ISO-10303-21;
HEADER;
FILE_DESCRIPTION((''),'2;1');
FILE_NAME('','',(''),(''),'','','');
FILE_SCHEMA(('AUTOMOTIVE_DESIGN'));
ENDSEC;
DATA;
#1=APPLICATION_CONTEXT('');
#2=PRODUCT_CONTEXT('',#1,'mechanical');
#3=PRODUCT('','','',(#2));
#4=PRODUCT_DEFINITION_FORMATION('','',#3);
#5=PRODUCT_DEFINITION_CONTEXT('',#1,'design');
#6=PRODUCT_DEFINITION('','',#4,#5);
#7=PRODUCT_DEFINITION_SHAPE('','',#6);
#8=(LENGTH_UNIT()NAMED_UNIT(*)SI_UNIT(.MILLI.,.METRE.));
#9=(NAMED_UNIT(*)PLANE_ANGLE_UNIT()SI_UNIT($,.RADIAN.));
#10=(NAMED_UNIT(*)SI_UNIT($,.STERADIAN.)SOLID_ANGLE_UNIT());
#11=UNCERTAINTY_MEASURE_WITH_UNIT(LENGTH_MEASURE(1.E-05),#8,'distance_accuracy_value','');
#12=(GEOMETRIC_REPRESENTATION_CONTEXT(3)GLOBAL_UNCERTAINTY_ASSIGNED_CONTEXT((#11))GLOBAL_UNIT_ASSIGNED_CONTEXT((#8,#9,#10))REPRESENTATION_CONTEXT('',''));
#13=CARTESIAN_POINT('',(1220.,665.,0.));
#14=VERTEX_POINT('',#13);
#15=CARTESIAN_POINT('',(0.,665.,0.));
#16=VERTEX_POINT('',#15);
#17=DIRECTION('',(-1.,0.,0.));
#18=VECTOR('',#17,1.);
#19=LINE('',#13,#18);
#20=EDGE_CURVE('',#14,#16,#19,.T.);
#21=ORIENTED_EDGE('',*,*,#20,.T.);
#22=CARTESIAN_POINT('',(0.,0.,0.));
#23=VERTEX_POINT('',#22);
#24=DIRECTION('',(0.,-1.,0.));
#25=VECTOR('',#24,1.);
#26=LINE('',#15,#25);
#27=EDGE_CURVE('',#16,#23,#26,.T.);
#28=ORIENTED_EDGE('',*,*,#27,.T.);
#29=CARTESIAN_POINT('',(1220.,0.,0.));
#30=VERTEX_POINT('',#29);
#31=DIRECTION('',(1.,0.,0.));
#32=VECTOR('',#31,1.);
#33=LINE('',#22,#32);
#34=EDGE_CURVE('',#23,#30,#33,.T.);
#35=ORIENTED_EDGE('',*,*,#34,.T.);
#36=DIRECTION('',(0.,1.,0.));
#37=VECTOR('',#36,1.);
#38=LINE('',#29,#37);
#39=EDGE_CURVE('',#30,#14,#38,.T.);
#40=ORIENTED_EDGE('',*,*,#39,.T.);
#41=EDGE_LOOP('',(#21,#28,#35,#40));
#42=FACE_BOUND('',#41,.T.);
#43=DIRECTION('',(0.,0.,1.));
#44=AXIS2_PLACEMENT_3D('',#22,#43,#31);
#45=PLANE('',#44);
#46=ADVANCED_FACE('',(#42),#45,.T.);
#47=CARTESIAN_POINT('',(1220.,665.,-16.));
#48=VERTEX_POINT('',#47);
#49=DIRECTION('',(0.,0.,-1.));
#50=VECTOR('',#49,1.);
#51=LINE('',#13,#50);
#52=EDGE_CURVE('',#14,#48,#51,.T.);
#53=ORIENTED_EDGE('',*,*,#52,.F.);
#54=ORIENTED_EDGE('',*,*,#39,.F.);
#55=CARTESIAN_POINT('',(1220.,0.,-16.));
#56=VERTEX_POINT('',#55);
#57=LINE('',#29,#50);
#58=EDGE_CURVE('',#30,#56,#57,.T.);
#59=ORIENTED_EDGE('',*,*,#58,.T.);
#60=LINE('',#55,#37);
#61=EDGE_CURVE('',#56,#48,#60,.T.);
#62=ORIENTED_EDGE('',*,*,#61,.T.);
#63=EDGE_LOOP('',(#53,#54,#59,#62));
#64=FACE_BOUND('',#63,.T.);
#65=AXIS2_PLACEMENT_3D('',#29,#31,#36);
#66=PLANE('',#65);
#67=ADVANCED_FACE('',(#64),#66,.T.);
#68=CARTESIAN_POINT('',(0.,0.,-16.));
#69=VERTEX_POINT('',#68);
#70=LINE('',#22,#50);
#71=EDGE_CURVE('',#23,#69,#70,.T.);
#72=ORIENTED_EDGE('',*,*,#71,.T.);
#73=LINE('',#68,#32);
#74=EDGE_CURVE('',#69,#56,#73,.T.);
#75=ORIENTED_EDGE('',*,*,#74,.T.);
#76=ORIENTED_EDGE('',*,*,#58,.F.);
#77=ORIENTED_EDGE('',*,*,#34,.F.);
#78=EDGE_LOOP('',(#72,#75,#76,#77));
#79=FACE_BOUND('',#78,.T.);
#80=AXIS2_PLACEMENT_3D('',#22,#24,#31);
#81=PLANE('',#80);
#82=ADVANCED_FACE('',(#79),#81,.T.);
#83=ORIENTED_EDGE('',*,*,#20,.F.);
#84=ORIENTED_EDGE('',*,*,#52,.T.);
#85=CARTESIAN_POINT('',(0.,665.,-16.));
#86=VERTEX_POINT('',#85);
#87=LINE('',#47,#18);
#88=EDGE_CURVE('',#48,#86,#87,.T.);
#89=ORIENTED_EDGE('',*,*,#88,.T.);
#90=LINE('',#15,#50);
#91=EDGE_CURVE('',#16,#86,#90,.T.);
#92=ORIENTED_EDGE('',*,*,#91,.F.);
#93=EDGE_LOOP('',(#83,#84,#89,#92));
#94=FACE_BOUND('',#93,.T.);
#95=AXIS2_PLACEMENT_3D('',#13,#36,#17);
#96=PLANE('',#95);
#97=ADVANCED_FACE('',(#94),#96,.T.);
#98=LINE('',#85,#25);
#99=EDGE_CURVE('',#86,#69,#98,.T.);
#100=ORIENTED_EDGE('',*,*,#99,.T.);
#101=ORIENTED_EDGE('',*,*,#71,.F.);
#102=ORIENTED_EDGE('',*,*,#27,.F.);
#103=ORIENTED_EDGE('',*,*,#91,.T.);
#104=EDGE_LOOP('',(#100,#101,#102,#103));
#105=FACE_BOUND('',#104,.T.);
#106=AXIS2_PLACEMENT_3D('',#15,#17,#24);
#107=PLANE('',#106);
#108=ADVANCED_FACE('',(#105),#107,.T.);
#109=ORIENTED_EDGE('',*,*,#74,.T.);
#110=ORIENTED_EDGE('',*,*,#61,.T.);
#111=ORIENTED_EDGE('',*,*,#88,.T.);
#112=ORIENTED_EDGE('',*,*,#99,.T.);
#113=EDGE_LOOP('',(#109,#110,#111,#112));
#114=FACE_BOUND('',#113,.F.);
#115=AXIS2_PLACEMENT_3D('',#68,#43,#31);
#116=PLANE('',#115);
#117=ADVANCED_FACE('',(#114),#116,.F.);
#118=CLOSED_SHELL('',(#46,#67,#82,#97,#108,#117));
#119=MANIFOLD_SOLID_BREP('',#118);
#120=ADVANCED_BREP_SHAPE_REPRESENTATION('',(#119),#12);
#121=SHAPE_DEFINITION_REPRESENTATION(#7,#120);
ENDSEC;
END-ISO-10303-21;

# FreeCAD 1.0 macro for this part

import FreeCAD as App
import Part
import Sketcher
from FreeCAD import Vector
Q = App.Units.Quantity


def add_polygon(sketch, points):
    """Adds a closed chain of lines whose ends are joined by coincident constraints."""
    first, n = sketch.GeometryCount, len(points)
    for a, b in zip(points, points[1:] + points[:1]):
        sketch.addGeometry(Part.LineSegment(App.Vector(*a, 0), App.Vector(*b, 0)), False)
    for i in range(n):
        sketch.addConstraint(Sketcher.Constraint("Coincident", first + i, 2, first + (i + 1) % n, 1))

doc = App.newDocument("Part")
body = doc.addObject("PartDesign::Body", "Body")

sketch1 = body.newObject("Sketcher::SketchObject", "Sketch")
sketch1.AttachmentSupport = (doc.getObject("XY_Plane"), [""])
sketch1.MapMode = "FlatFace"
add_polygon(sketch1, [(0, 665), (0, 0), (1220, 0), (1220, 665)])
sketch1.addConstraint([
    Sketcher.Constraint("Vertical", 0),
    Sketcher.Constraint("Horizontal", 1),
    Sketcher.Constraint("Vertical", 2),
    Sketcher.Constraint("Horizontal", 3),
    Sketcher.Constraint("Coincident", 0, 2, -1, 1),
    Sketcher.Constraint("DistanceX", 1, 1, 1, 2, Q("1220 mm")),
    Sketcher.Constraint("DistanceY", 0, 2, 0, 1, Q("665 mm")),
])
pad1 = body.newObject("PartDesign::Pad", "Pad")
pad1.Profile = sketch1
pad1.Length = 16
pad1.Reversed = True

doc.recompute()
